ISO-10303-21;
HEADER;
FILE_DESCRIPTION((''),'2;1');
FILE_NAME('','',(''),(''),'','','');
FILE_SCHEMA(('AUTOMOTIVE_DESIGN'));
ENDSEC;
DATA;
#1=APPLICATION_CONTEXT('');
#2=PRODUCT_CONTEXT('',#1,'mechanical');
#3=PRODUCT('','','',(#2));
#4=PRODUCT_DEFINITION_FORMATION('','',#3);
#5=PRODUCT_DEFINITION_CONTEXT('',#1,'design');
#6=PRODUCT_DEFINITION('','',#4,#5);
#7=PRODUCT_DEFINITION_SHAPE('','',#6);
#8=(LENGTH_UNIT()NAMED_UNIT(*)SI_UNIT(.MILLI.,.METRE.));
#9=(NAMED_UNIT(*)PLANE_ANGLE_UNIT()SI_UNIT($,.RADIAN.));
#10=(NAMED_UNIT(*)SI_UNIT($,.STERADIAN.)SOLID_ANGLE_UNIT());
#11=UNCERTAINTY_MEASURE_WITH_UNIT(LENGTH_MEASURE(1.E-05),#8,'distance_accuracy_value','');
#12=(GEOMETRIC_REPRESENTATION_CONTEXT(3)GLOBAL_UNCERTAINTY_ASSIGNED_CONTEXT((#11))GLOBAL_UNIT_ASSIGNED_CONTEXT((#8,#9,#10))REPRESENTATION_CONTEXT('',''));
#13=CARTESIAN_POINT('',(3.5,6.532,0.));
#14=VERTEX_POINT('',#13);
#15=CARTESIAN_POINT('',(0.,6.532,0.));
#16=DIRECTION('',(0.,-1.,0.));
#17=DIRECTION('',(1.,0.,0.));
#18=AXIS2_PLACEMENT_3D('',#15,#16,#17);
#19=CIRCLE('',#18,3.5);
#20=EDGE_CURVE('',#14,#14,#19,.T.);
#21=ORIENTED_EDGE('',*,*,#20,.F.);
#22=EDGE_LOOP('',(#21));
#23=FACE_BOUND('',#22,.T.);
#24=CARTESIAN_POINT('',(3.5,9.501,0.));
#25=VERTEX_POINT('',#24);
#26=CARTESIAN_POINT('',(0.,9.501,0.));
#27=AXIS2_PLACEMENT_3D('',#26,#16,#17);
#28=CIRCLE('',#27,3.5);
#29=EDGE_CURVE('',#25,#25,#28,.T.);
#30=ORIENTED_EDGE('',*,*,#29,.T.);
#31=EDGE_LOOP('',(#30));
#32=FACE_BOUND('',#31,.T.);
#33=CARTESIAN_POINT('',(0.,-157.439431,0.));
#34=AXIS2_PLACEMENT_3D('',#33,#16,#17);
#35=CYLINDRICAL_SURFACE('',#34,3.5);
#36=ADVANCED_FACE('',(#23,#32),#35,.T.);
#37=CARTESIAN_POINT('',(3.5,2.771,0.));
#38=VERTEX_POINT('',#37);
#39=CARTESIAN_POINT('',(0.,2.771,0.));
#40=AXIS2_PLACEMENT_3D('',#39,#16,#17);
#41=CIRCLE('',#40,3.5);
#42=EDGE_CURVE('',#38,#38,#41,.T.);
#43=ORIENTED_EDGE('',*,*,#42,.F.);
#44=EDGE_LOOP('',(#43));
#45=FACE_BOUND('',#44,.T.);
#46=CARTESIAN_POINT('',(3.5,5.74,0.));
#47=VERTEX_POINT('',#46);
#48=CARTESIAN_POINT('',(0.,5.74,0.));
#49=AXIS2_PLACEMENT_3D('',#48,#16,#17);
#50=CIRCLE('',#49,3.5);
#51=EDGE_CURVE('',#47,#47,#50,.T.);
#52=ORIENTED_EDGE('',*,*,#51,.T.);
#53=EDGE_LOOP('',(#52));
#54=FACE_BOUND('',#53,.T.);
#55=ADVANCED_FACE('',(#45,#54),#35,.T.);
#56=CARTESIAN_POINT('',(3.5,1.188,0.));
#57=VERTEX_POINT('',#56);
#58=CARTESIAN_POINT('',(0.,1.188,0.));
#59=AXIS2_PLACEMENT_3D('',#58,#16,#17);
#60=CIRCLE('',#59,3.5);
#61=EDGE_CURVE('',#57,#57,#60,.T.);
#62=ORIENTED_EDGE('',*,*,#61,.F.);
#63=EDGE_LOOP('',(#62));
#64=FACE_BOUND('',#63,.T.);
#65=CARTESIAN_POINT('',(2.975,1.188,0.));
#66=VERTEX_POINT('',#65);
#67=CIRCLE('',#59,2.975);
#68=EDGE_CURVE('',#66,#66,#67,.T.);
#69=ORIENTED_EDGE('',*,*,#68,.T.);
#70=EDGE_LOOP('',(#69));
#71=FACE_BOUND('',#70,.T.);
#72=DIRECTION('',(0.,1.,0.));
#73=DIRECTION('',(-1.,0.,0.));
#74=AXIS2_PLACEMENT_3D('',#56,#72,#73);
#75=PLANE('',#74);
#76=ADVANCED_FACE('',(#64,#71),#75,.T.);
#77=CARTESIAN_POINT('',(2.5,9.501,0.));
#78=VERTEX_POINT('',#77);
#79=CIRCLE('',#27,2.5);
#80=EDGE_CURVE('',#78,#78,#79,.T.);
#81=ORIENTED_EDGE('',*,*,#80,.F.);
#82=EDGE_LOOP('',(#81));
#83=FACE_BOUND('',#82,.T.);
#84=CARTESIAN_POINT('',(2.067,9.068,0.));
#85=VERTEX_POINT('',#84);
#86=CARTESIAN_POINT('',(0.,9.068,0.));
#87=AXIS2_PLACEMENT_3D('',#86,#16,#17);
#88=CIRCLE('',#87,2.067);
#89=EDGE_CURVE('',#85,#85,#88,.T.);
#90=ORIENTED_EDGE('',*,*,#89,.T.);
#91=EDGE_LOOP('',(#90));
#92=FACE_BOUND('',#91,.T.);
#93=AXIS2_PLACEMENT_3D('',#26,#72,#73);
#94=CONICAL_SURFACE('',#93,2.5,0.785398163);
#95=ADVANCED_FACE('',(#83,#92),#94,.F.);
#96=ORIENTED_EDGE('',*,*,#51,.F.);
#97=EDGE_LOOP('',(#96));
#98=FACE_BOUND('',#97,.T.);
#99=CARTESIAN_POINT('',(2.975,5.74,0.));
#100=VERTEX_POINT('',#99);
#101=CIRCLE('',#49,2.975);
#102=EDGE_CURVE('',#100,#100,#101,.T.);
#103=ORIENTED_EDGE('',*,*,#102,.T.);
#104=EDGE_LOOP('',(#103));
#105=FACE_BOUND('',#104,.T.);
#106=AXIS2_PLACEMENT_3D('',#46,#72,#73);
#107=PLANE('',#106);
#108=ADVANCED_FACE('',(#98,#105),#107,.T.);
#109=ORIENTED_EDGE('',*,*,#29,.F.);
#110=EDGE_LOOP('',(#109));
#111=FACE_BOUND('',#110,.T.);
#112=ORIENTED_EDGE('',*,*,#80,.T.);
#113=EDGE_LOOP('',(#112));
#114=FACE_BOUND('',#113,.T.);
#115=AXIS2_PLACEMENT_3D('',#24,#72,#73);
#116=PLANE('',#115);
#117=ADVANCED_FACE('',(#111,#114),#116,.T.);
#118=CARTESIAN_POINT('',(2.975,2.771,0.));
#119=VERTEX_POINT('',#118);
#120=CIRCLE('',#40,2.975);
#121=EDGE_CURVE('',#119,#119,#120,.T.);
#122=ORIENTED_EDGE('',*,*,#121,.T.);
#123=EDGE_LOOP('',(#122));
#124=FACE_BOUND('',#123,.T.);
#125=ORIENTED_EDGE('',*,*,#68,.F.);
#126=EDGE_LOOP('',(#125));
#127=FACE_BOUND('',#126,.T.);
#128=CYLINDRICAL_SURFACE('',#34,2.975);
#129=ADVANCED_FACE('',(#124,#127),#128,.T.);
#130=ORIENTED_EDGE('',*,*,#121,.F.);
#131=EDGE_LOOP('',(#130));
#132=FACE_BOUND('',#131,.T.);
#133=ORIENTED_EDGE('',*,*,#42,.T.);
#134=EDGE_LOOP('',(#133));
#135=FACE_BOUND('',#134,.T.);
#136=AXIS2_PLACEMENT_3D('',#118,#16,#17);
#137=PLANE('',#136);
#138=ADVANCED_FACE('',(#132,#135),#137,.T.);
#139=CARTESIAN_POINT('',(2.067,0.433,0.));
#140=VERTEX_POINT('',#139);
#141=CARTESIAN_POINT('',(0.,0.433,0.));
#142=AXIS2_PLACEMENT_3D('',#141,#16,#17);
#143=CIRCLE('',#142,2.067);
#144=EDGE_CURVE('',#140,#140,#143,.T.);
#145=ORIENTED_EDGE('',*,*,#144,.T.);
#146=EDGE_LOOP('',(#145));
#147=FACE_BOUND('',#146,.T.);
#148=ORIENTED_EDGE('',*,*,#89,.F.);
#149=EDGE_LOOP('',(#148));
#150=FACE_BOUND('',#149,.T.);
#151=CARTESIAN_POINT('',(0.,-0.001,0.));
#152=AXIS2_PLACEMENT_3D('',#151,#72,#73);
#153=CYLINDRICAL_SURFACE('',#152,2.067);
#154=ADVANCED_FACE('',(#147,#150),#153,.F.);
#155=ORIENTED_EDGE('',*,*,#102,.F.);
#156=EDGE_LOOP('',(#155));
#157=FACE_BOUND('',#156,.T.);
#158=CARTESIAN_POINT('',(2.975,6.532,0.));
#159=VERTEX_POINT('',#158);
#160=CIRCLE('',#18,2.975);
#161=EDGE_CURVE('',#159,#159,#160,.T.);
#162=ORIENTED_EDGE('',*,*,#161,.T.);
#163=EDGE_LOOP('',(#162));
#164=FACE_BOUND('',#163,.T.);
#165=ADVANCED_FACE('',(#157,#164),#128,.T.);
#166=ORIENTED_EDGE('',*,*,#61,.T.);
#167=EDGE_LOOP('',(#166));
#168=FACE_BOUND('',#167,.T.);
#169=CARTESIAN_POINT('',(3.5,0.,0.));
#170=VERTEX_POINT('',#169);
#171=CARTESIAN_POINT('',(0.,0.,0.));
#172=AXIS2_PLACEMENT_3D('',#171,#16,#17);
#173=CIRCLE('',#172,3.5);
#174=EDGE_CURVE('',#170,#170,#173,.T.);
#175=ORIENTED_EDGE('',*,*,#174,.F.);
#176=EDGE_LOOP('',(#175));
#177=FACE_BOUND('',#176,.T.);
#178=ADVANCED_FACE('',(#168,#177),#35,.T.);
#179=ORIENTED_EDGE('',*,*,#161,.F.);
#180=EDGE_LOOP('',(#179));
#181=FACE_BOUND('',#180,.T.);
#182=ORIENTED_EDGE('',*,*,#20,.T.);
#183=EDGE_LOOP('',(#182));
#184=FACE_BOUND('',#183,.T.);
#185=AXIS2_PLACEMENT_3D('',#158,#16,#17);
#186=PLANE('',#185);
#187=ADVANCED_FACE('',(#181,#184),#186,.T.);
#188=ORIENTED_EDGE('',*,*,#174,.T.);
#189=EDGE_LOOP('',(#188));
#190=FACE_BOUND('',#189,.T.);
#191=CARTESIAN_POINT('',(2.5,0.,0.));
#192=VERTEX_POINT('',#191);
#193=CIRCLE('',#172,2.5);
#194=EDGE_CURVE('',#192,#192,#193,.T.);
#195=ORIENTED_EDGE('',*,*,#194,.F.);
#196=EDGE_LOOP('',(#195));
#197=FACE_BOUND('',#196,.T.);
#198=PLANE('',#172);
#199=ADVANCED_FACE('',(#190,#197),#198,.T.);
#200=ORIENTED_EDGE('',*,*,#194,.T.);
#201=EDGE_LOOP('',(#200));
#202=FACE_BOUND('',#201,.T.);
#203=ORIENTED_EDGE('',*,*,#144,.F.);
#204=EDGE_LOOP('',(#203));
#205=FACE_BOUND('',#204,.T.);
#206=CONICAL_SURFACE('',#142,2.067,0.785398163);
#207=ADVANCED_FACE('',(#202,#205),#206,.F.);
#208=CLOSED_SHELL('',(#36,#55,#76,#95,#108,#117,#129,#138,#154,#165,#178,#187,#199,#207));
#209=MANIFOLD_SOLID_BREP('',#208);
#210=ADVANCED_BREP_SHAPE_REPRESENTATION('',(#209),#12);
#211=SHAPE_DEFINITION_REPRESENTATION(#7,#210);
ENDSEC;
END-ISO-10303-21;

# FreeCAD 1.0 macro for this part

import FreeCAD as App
import Part
import Sketcher

V = App.Vector

doc = App.newDocument("Part")
params = doc.addObject("Spreadsheet::Sheet", "Params")
for row, (alias, value) in enumerate([
    ("sketch1_width", "3.5 mm"),
    ("revolution_angle", "360 deg"),
    ("groove_angle", "360 deg"),
], start=1):
    params.set(f"A{row}", alias)
    params.set(f"B{row}", "=" + value)
    params.setAlias(f"B{row}", alias)

body = doc.addObject("PartDesign::Body", "Body")

# Sketch on XY plane
sketch1 = body.newObject("Sketcher::SketchObject", "Sketch")
sketch1.AttachmentSupport = (doc.getObject("XY_Plane"), [""])
sketch1.MapMode = "FlatFace"
sketch1.addGeometry([
    Part.LineSegment(V(0, 0, 0), V(3.5, 0, 0)),  # 0
    Part.LineSegment(V(3.5, 0, 0), V(3.5, 1.188, 0)),  # 1
    Part.LineSegment(V(3.5, 1.188, 0), V(2.975, 1.188, 0)),  # 2
    Part.LineSegment(V(2.975, 1.188, 0), V(2.975, 2.771, 0)),  # 3
    Part.LineSegment(V(2.975, 2.771, 0), V(3.5, 2.771, 0)),  # 4
    Part.LineSegment(V(3.5, 2.771, 0), V(3.5, 5.74, 0)),  # 5
    Part.LineSegment(V(3.5, 5.74, 0), V(2.975, 5.74, 0)),  # 6
    Part.LineSegment(V(2.975, 5.74, 0), V(2.975, 6.532, 0)),  # 7
    Part.LineSegment(V(2.975, 6.532, 0), V(3.5, 6.532, 0)),  # 8
    Part.LineSegment(V(3.5, 6.532, 0), V(3.5, 9.501, 0)),  # 9
    Part.LineSegment(V(3.5, 9.501, 0), V(0, 9.501, 0)),  # 10
    Part.LineSegment(V(0, 9.501, 0), V(0, 0, 0)),  # 11
], False)
sketch1.addConstraint([
    Sketcher.Constraint("Coincident", 0, 2, 1, 1),
    Sketcher.Constraint("Coincident", 1, 2, 2, 1),
    Sketcher.Constraint("Coincident", 2, 2, 3, 1),
    Sketcher.Constraint("Coincident", 3, 2, 4, 1),
    Sketcher.Constraint("Coincident", 4, 2, 5, 1),
    Sketcher.Constraint("Coincident", 5, 2, 6, 1),
    Sketcher.Constraint("Coincident", 6, 2, 7, 1),
    Sketcher.Constraint("Coincident", 7, 2, 8, 1),
    Sketcher.Constraint("Coincident", 8, 2, 9, 1),
    Sketcher.Constraint("Coincident", 9, 2, 10, 1),
    Sketcher.Constraint("Coincident", 10, 2, 11, 1),
    Sketcher.Constraint("Coincident", 11, 2, 0, 1),
    Sketcher.Constraint("Horizontal", 0),
    Sketcher.Constraint("Vertical", 1),
    Sketcher.Constraint("Horizontal", 2),
    Sketcher.Constraint("Vertical", 3),
    Sketcher.Constraint("Horizontal", 4),
    Sketcher.Constraint("Vertical", 5),
    Sketcher.Constraint("Horizontal", 6),
    Sketcher.Constraint("Vertical", 7),
    Sketcher.Constraint("Horizontal", 8),
    Sketcher.Constraint("Vertical", 9),
    Sketcher.Constraint("Horizontal", 10),
    Sketcher.Constraint("Vertical", 11),
    Sketcher.Constraint("Coincident", 11, 2, -1, 1),
    Sketcher.Constraint("Vertical", 1, 2, 4, 2),
    Sketcher.Constraint("Vertical", 3, 2, 6, 2),
    Sketcher.Constraint("Vertical", 5, 2, 8, 2),
    Sketcher.Constraint("Equal", 5, 9),
    Sketcher.Constraint("DistanceX", 0, 1, 0, 2, 3.5),
    Sketcher.Constraint("DistanceX", 2, 2, 2, 1, 0.525),
    Sketcher.Constraint("DistanceY", 1, 1, 1, 2, 1.188),
    Sketcher.Constraint("DistanceY", 3, 1, 3, 2, 1.583),
    Sketcher.Constraint("DistanceY", 5, 1, 5, 2, 2.969),
    Sketcher.Constraint("DistanceY", 7, 1, 7, 2, 0.792),
])
sketch1.setExpression("Constraints[29]", "Params.sketch1_width")
revolution = body.newObject("PartDesign::Revolution", "Revolution")
revolution.Profile = sketch1
revolution.ReferenceAxis = (sketch1, ["V_Axis"])
revolution.setExpression("Angle", "Params.revolution_angle")

# Sketch on XZ plane
sketch2 = body.newObject("Sketcher::SketchObject", "Sketch001")
sketch2.AttachmentSupport = (doc.getObject("XZ_Plane"), [""])
sketch2.MapMode = "FlatFace"
sketch2.AttachmentOffset = App.Placement(V(0, 0, -9.501), App.Rotation())
sketch2.addGeometry(Part.Circle(V(0, 0, 0), V(0, 0, 1), 2.067), False)
sketch2.addConstraint([
    Sketcher.Constraint("Coincident", 0, 3, -1, 1),
    Sketcher.Constraint("Diameter", 0, 4.134),
])
pocket1 = body.newObject("PartDesign::Pocket", "Pocket")
pocket1.Profile = sketch2
pocket1.Type = "UpToFirst"
pocket1.Reversed = True

# Sketch on XY plane
sketch3 = body.newObject("Sketcher::SketchObject", "Sketch002")
sketch3.AttachmentSupport = (doc.getObject("XY_Plane"), [""])
sketch3.MapMode = "FlatFace"
sketch3.addGeometry([
    Part.LineSegment(V(-2.5, 9.501, 0), V(-2.067, 9.068, 0)),  # 0
    Part.LineSegment(V(-2.067, 9.068, 0), V(-2.067, 9.501, 0)),  # 1
    Part.LineSegment(V(-2.067, 9.501, 0), V(-2.5, 9.501, 0)),  # 2
    Part.LineSegment(V(-2.067, 0.433, 0), V(-2.5, 0, 0)),  # 3
    Part.LineSegment(V(-2.5, 0, 0), V(-2.067, 0, 0)),  # 4
    Part.LineSegment(V(-2.067, 0, 0), V(-2.067, 0.433, 0)),  # 5
], False)
sketch3.addConstraint([
    Sketcher.Constraint("Coincident", 0, 2, 1, 1),
    Sketcher.Constraint("Coincident", 1, 2, 2, 1),
    Sketcher.Constraint("Coincident", 2, 2, 0, 1),
    Sketcher.Constraint("Coincident", 3, 2, 4, 1),
    Sketcher.Constraint("Coincident", 4, 2, 5, 1),
    Sketcher.Constraint("Coincident", 5, 2, 3, 1),
    Sketcher.Constraint("Vertical", 1),
    Sketcher.Constraint("Horizontal", 2),
    Sketcher.Constraint("Horizontal", 4),
    Sketcher.Constraint("Vertical", 5),
    Sketcher.Constraint("PointOnObject", 3, 2, -1),
    Sketcher.Constraint("Perpendicular", 0, 3),
    Sketcher.Constraint("Vertical", 2, 2, 3, 2),
    Sketcher.Constraint("Vertical", 1, 2, 4, 2),
    Sketcher.Constraint("Equal", 4, 1),
    Sketcher.Constraint("DistanceX", 2, 2, -1, 1, 2.5),
    Sketcher.Constraint("DistanceX", 2, 2, 2, 1, 0.433),
    Sketcher.Constraint("DistanceY", -1, 1, 0, 2, 9.068),
])
groove = body.newObject("PartDesign::Groove", "Groove")
groove.Profile = sketch3
groove.ReferenceAxis = (sketch3, ["V_Axis"])
groove.setExpression("Angle", "Params.groove_angle")

doc.recompute()
